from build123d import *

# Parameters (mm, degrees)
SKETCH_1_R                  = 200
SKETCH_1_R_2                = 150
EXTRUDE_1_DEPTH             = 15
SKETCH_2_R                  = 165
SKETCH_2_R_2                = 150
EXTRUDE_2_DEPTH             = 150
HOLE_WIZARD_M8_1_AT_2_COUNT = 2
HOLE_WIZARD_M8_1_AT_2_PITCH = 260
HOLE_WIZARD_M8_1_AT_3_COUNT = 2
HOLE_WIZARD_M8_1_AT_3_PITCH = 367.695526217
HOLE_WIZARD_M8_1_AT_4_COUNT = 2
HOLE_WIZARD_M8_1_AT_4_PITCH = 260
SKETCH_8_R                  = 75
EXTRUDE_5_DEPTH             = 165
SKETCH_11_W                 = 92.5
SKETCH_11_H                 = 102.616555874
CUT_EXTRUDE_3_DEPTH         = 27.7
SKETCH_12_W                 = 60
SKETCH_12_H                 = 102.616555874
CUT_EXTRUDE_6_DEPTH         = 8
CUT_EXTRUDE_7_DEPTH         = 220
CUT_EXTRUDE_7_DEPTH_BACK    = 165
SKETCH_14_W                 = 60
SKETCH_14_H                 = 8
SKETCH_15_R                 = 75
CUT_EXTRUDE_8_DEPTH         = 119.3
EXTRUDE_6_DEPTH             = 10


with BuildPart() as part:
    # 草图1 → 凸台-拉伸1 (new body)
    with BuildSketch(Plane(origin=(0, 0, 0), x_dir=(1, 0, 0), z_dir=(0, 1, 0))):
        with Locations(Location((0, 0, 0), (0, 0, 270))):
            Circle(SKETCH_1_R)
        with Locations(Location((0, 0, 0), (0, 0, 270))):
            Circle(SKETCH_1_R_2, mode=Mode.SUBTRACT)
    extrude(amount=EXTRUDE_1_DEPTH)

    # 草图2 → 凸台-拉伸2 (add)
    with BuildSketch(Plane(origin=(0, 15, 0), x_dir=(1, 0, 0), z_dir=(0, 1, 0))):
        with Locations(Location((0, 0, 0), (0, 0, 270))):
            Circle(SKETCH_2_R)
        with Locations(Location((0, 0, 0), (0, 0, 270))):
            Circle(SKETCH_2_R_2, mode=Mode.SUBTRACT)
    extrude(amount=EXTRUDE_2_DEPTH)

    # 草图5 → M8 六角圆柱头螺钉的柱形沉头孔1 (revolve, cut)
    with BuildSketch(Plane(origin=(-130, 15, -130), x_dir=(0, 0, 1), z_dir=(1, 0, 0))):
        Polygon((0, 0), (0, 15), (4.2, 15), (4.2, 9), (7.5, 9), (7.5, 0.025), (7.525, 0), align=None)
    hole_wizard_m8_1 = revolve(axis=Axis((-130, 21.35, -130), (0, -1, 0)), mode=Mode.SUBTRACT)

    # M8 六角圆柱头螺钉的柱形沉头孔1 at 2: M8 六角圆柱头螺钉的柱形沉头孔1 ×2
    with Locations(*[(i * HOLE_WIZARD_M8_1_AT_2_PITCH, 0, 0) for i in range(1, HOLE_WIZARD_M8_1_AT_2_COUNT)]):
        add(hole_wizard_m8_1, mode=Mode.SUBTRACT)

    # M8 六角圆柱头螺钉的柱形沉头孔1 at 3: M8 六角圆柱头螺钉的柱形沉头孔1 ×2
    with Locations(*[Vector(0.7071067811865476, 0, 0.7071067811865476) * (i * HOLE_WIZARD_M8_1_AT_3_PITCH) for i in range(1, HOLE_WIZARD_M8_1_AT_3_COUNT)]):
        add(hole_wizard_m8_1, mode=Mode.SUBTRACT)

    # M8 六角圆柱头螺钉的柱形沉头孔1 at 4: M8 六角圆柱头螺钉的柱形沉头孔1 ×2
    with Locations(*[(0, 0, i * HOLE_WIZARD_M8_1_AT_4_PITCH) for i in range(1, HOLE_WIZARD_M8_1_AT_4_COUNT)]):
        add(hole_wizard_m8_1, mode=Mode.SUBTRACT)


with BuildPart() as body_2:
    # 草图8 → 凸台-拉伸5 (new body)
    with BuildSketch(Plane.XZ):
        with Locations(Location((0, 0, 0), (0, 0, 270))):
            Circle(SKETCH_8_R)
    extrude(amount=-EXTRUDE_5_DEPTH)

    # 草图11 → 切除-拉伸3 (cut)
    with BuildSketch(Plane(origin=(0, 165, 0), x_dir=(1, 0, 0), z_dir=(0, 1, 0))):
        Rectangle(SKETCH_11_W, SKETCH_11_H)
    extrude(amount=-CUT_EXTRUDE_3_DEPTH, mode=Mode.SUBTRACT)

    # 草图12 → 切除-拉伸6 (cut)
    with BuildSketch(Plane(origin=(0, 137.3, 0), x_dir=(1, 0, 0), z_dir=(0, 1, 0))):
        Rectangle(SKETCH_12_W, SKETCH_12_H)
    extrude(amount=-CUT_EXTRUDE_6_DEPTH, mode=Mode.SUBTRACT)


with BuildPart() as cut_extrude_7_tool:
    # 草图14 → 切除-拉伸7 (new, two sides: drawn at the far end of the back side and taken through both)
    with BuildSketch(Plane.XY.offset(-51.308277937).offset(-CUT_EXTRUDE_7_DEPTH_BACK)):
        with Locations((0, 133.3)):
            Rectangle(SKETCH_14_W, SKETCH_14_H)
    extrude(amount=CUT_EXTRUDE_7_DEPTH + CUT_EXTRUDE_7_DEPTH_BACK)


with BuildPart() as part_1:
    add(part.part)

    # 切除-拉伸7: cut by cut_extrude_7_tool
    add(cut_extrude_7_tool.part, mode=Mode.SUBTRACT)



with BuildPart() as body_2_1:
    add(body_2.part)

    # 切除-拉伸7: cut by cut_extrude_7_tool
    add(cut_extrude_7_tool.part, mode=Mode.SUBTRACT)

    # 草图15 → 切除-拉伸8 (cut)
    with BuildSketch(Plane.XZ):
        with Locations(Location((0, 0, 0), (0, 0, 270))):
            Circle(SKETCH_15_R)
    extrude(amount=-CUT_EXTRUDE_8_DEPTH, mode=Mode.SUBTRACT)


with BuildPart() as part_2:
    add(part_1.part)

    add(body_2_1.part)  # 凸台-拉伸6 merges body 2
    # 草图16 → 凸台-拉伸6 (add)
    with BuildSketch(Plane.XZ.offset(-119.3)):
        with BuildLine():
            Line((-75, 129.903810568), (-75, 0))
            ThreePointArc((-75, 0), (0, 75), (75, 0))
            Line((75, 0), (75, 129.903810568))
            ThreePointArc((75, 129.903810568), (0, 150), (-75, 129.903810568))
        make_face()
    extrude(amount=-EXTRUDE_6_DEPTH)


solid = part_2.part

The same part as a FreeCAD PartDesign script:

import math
import FreeCAD as App
import Part
import Sketcher

V = App.Vector
Q = App.Units.Quantity

doc = App.newDocument("Part")
body = doc.addObject("PartDesign::Body", "Body")

# Sketch on XZ plane
sketch1 = doc.addObject("Sketcher::SketchObject", "Sketch")
body.addObject(sketch1)
sketch1.AttachmentSupport = (doc.XZ_Plane, [""])
sketch1.MapMode = "FlatFace"
sketch1.addGeometry([
    Part.Circle(V(0, 0, 0), V(0, 0, 1), 200),
    Part.Circle(V(0, 0, 0), V(0, 0, 1), 150),
], False)
sketch1.addConstraint([
    Sketcher.Constraint("Coincident", 0, 3, -1, 1),
    Sketcher.Constraint("Coincident", 1, 3, -1, 1),
    Sketcher.Constraint("Diameter", 0, Q("400 mm")),
    Sketcher.Constraint("Diameter", 1, Q("300 mm")),
])
pad1 = doc.addObject("PartDesign::Pad", "Pad")
body.addObject(pad1)
pad1.Profile = sketch1
pad1.Length = 15
pad1.Reversed = True

# Sketch on XZ plane
sketch2 = doc.addObject("Sketcher::SketchObject", "Sketch001")
body.addObject(sketch2)
sketch2.AttachmentSupport = (doc.XZ_Plane, [""])
sketch2.MapMode = "FlatFace"
sketch2.AttachmentOffset = App.Placement(V(0, 0, -15), App.Rotation())
sketch2.addGeometry([
    Part.Circle(V(0, 0, 0), V(0, 0, 1), 165),
    Part.Circle(V(0, 0, 0), V(0, 0, 1), 150),
], False)
sketch2.addConstraint([
    Sketcher.Constraint("Coincident", 0, 3, -1, 1),
    Sketcher.Constraint("Coincident", 1, 3, -1, 1),
    Sketcher.Constraint("Diameter", 0, Q("330 mm")),
    Sketcher.Constraint("Diameter", 1, Q("300 mm")),
])
pad2 = doc.addObject("PartDesign::Pad", "Pad001")
body.addObject(pad2)
pad2.Profile = sketch2
pad2.Length = 150
pad2.Reversed = True

# Sketch on YZ plane
sketch3 = doc.addObject("Sketcher::SketchObject", "Sketch002")
body.addObject(sketch3)
sketch3.AttachmentSupport = (doc.YZ_Plane, [""])
sketch3.MapMode = "FlatFace"
sketch3.AttachmentOffset = App.Placement(V(0, 0, -130), App.Rotation())
sketch3.addGeometry([
    Part.LineSegment(V(0, -130, 0), V(15, -130, 0)),  # 0
    Part.LineSegment(V(15, -130, 0), V(15, -122.475, 0)),  # 1
    Part.LineSegment(V(15, -122.475, 0), V(14.975, -122.5, 0)),  # 2
    Part.LineSegment(V(14.975, -122.5, 0), V(6, -122.5, 0)),  # 3
    Part.LineSegment(V(6, -122.5, 0), V(6, -125.8, 0)),  # 4
    Part.LineSegment(V(6, -125.8, 0), V(0, -125.8, 0)),  # 5
    Part.LineSegment(V(0, -125.8, 0), V(0, -130, 0)),  # 6
], False)
sketch3.addGeometry(Part.LineSegment(V(15, -130, 0), V(0, -130, 0)), True)  # axis
sketch3.addConstraint([
    Sketcher.Constraint("Coincident", 0, 2, 1, 1),
    Sketcher.Constraint("Coincident", 1, 2, 2, 1),
    Sketcher.Constraint("Coincident", 2, 2, 3, 1),
    Sketcher.Constraint("Coincident", 3, 2, 4, 1),
    Sketcher.Constraint("Coincident", 4, 2, 5, 1),
    Sketcher.Constraint("Coincident", 5, 2, 6, 1),
    Sketcher.Constraint("Coincident", 6, 2, 0, 1),
    Sketcher.Constraint("Horizontal", 0),
    Sketcher.Constraint("Vertical", 1),
    Sketcher.Constraint("Horizontal", 3),
    Sketcher.Constraint("Vertical", 4),
    Sketcher.Constraint("Horizontal", 5),
    Sketcher.Constraint("Vertical", 6),
    Sketcher.Constraint("Horizontal", 7),
    Sketcher.Constraint("Coincident", 7, 1, 0, 2),
    Sketcher.Constraint("PointOnObject", 5, 2, -2),
    Sketcher.Constraint("PointOnObject", 7, 2, -2),
    Sketcher.Constraint("DistanceX", 0, 1, 0, 2, Q("15 mm")),
    Sketcher.Constraint("DistanceX", 5, 2, 5, 1, Q("6 mm")),
    Sketcher.Constraint("Angle", 2, Q("-135 deg")),
    Sketcher.Constraint("DistanceY", 4, 2, 4, 1, Q("3.3 mm")),
    Sketcher.Constraint("DistanceY", 6, 2, 6, 1, Q("4.2 mm")),
    Sketcher.Constraint("DistanceY", 0, 2, -1, 1, Q("130 mm")),
    Sketcher.Constraint("DistanceX", 3, 2, 3, 1, Q("8.975 mm")),
])
groove = doc.addObject("PartDesign::Groove", "Groove")
body.addObject(groove)
groove.Profile = sketch3
groove.ReferenceAxis = (sketch3, ["Axis0"])
groove.Angle = 360
doc.recompute()

linearpattern = doc.addObject("PartDesign::LinearPattern", "LinearPattern")
body.addObject(linearpattern)
linearpattern.Originals = [groove]
linearpattern.Direction = (doc.X_Axis, [""])
linearpattern.Mode = "offset"
linearpattern.Offset = 260
linearpattern.Occurrences = 2
body.Tip = linearpattern
doc.recompute()

datumline = doc.addObject("PartDesign::Line", "DatumLine")
body.addObject(datumline)
datumline.Placement = App.Placement(V(0, 0, 0), App.Rotation(V(0, 0, 1), V(0.707106781, 0, 0.707106781)))
linearpattern2 = doc.addObject("PartDesign::LinearPattern", "LinearPattern001")
body.addObject(linearpattern2)
linearpattern2.Originals = [groove]
linearpattern2.Direction = (datumline, [""])
linearpattern2.Mode = "offset"
linearpattern2.Offset = 367.695526
linearpattern2.Occurrences = 2
body.Tip = linearpattern2
doc.recompute()

linearpattern3 = doc.addObject("PartDesign::LinearPattern", "LinearPattern002")
body.addObject(linearpattern3)
linearpattern3.Originals = [groove]
linearpattern3.Direction = (doc.Z_Axis, [""])
linearpattern3.Mode = "offset"
linearpattern3.Offset = 260
linearpattern3.Occurrences = 2
body.Tip = linearpattern3
body2 = doc.addObject("PartDesign::Body", "Body001")

# Sketch on XZ plane
sketch4 = doc.addObject("Sketcher::SketchObject", "Sketch003")
body2.addObject(sketch4)
sketch4.AttachmentSupport = (doc.getObject("XZ_Plane001"), [""])
sketch4.MapMode = "FlatFace"
sketch4.addGeometry(Part.Circle(V(0, 0, 0), V(0, 0, 1), 75), False)
sketch4.addConstraint([
    Sketcher.Constraint("Coincident", 0, 3, -1, 1),
    Sketcher.Constraint("Diameter", 0, Q("150 mm")),
])
pad3 = doc.addObject("PartDesign::Pad", "Pad002")
body2.addObject(pad3)
pad3.Profile = sketch4
pad3.Length = 165
pad3.Reversed = True

# Sketch on XZ plane
sketch5 = doc.addObject("Sketcher::SketchObject", "Sketch004")
body2.addObject(sketch5)
sketch5.AttachmentSupport = (doc.getObject("XZ_Plane001"), [""])
sketch5.MapMode = "FlatFace"
sketch5.AttachmentOffset = App.Placement(V(0, 0, -165), App.Rotation())
sketch5.addGeometry([
    Part.LineSegment(V(-46.25, -51.308278, 0), V(-46.25, 51.308278, 0)),
    Part.LineSegment(V(-46.25, 51.308278, 0), V(46.25, 51.308278, 0)),
    Part.LineSegment(V(46.25, 51.308278, 0), V(46.25, -51.308278, 0)),
    Part.LineSegment(V(46.25, -51.308278, 0), V(-46.25, -51.308278, 0)),
], False)
sketch5.addConstraint([
    Sketcher.Constraint("Coincident", 0, 2, 1, 1),
    Sketcher.Constraint("Coincident", 1, 2, 2, 1),
    Sketcher.Constraint("Coincident", 2, 2, 3, 1),
    Sketcher.Constraint("Coincident", 3, 2, 0, 1),
    Sketcher.Constraint("Vertical", 0),
    Sketcher.Constraint("Horizontal", 1),
    Sketcher.Constraint("Vertical", 2),
    Sketcher.Constraint("Horizontal", 3),
    Sketcher.Constraint("Symmetric", 0, 2, 2, 2, -1, 1),
    Sketcher.Constraint("DistanceX", 1, 1, 1, 2, Q("92.5 mm")),
    Sketcher.Constraint("DistanceY", 0, 1, 0, 2, Q("102.616556 mm")),
])
pocket1 = doc.addObject("PartDesign::Pocket", "Pocket")
body2.addObject(pocket1)
pocket1.Profile = sketch5
pocket1.Length = 27.7
pocket1.Reversed = True

# Sketch on XZ plane
sketch6 = doc.addObject("Sketcher::SketchObject", "Sketch005")
body2.addObject(sketch6)
sketch6.AttachmentSupport = (doc.getObject("XZ_Plane001"), [""])
sketch6.MapMode = "FlatFace"
sketch6.AttachmentOffset = App.Placement(V(0, 0, -137.3), App.Rotation())
sketch6.addGeometry([
    Part.LineSegment(V(-30, -51.308278, 0), V(-30, 51.308278, 0)),
    Part.LineSegment(V(-30, 51.308278, 0), V(30, 51.308278, 0)),
    Part.LineSegment(V(30, 51.308278, 0), V(30, -51.308278, 0)),
    Part.LineSegment(V(30, -51.308278, 0), V(-30, -51.308278, 0)),
], False)
sketch6.addConstraint([
    Sketcher.Constraint("Coincident", 0, 2, 1, 1),
    Sketcher.Constraint("Coincident", 1, 2, 2, 1),
    Sketcher.Constraint("Coincident", 2, 2, 3, 1),
    Sketcher.Constraint("Coincident", 3, 2, 0, 1),
    Sketcher.Constraint("Vertical", 0),
    Sketcher.Constraint("Horizontal", 1),
    Sketcher.Constraint("Vertical", 2),
    Sketcher.Constraint("Horizontal", 3),
    Sketcher.Constraint("Symmetric", 0, 2, 2, 2, -1, 1),
    Sketcher.Constraint("DistanceX", 1, 1, 1, 2, Q("60 mm")),
    Sketcher.Constraint("DistanceY", 0, 1, 0, 2, Q("102.616556 mm")),
])
pocket2 = doc.addObject("PartDesign::Pocket", "Pocket001")
body2.addObject(pocket2)
pocket2.Profile = sketch6
pocket2.Length = 8
pocket2.Reversed = True
body3 = doc.addObject("PartDesign::Body", "Body002")

# Sketch on XY plane
sketch7 = doc.addObject("Sketcher::SketchObject", "Sketch006")
body3.addObject(sketch7)
sketch7.AttachmentSupport = (doc.getObject("XY_Plane002"), [""])
sketch7.MapMode = "FlatFace"
sketch7.AttachmentOffset = App.Placement(V(0, 0, -51.308278), App.Rotation())
sketch7.addGeometry([
    Part.LineSegment(V(-30, 137.3, 0), V(-30, 129.3, 0)),
    Part.LineSegment(V(-30, 129.3, 0), V(30, 129.3, 0)),
    Part.LineSegment(V(30, 129.3, 0), V(30, 137.3, 0)),
    Part.LineSegment(V(30, 137.3, 0), V(-30, 137.3, 0)),
], False)
sketch7.addConstraint([
    Sketcher.Constraint("Coincident", 0, 2, 1, 1),
    Sketcher.Constraint("Coincident", 1, 2, 2, 1),
    Sketcher.Constraint("Coincident", 2, 2, 3, 1),
    Sketcher.Constraint("Coincident", 3, 2, 0, 1),
    Sketcher.Constraint("Vertical", 0),
    Sketcher.Constraint("Horizontal", 1),
    Sketcher.Constraint("Vertical", 2),
    Sketcher.Constraint("Horizontal", 3),
    Sketcher.Constraint("DistanceX", 1, 1, 1, 2, Q("60 mm")),
    Sketcher.Constraint("DistanceY", 0, 2, 0, 1, Q("8 mm")),
    Sketcher.Constraint("DistanceX", 0, 2, -1, 1, Q("30 mm")),
    Sketcher.Constraint("DistanceY", -1, 1, 0, 2, Q("129.3 mm")),
])
pad4 = doc.addObject("PartDesign::Pad", "Pad003")
body3.addObject(pad4)
pad4.Profile = sketch7
pad4.Type = "TwoLengths"
pad4.Length = 220
pad4.Length2 = 165
doc.recompute()

body4 = doc.addObject("PartDesign::Body", "Body003")
body4.BaseFeature = body3
boolean = doc.addObject("PartDesign::Boolean", "Boolean")
body.addObject(boolean)
boolean.Type = "Cut"
boolean.addObjects([body4])
doc.recompute()

boolean2 = doc.addObject("PartDesign::Boolean", "Boolean001")
body2.addObject(boolean2)
boolean2.Type = "Cut"
boolean2.addObjects([body3])

# Sketch on XZ plane
sketch8 = doc.addObject("Sketcher::SketchObject", "Sketch007")
body2.addObject(sketch8)
sketch8.AttachmentSupport = (doc.getObject("XZ_Plane001"), [""])
sketch8.MapMode = "FlatFace"
sketch8.addGeometry(Part.Circle(V(0, 0, 0), V(0, 0, 1), 75), False)
sketch8.addConstraint([
    Sketcher.Constraint("Coincident", 0, 3, -1, 1),
    Sketcher.Constraint("Diameter", 0, Q("150 mm")),
])
pocket3 = doc.addObject("PartDesign::Pocket", "Pocket002")
body2.addObject(pocket3)
pocket3.Profile = sketch8
pocket3.Length = 119.3
body.AllowCompound = True
doc.recompute()

boolean3 = doc.addObject("PartDesign::Boolean", "Boolean002")
body.addObject(boolean3)
boolean3.Type = "Fuse"
boolean3.addObjects([body2])

# Sketch on XZ plane
sketch9 = doc.addObject("Sketcher::SketchObject", "Sketch008")
body.addObject(sketch9)
sketch9.AttachmentSupport = (doc.XZ_Plane, [""])
sketch9.MapMode = "FlatFace"
sketch9.AttachmentOffset = App.Placement(V(0, 0, -119.3), App.Rotation())
sketch9.addGeometry([
    Part.LineSegment(V(-75, 129.903811, 0), V(-75, 0, 0)),
    Part.ArcOfCircle(Part.Circle(V(0, 0, 0), V(0, 0, 1), 75), math.radians(0), math.radians(180)),
    Part.LineSegment(V(75, 0, 0), V(75, 129.903811, 0)),
    Part.ArcOfCircle(Part.Circle(V(0, 0, 0), V(0, 0, 1), 150), math.radians(60), math.radians(120)),
], False)
sketch9.addConstraint([
    Sketcher.Constraint("Tangent", 0, 2, 1, 2),
    Sketcher.Constraint("Tangent", 1, 1, 2, 1),
    Sketcher.Constraint("Coincident", 2, 2, 3, 1),
    Sketcher.Constraint("Coincident", 3, 2, 0, 1),
    Sketcher.Constraint("Vertical", 0),
    Sketcher.Constraint("Vertical", 2),
    Sketcher.Constraint("Coincident", 1, 3, -1, 1),
    Sketcher.Constraint("Coincident", 3, 3, -1, 1),
    Sketcher.Constraint("Radius", 1, Q("75 mm")),
    Sketcher.Constraint("Radius", 3, Q("150 mm")),
])
pad5 = doc.addObject("PartDesign::Pad", "Pad004")
body.addObject(pad5)
pad5.Profile = sketch9
pad5.Length = 10
pad5.Reversed = True

doc.recompute()
